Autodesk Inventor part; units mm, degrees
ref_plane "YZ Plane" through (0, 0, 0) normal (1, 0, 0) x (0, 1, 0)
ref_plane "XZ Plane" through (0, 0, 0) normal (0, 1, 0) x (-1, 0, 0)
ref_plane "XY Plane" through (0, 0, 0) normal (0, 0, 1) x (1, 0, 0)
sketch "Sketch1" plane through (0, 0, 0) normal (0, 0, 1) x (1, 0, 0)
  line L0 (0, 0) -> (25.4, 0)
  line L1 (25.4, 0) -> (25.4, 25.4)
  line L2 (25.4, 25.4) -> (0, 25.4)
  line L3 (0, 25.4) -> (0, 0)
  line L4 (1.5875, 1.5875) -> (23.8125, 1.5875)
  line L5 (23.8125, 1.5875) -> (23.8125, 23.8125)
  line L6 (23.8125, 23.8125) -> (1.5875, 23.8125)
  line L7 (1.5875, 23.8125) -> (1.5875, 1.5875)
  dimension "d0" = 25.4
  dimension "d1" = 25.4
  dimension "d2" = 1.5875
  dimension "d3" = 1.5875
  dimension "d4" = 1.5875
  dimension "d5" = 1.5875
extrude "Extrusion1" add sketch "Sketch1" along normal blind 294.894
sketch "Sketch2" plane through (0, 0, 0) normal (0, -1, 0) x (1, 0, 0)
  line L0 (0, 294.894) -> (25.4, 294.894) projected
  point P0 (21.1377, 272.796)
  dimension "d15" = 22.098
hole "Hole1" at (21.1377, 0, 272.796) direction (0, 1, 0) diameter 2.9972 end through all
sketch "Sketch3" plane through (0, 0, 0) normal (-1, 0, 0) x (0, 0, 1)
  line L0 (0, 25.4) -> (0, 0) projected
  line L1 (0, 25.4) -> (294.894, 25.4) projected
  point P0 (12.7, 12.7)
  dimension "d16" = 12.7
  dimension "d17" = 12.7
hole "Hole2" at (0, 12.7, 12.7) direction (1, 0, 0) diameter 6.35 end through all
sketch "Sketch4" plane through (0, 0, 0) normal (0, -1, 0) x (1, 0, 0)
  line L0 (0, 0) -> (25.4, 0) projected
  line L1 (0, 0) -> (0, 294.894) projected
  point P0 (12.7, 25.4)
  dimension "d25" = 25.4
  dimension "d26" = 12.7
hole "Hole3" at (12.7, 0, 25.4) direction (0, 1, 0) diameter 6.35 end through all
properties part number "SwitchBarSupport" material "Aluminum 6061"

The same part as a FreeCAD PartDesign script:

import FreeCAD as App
import Part
import Sketcher
from FreeCAD import Vector
Q = App.Units.Quantity

doc = App.newDocument("Part")
body = doc.addObject("PartDesign::Body", "Body")

# Sketch on XY plane
sketch1 = body.newObject("Sketcher::SketchObject", "Sketch")
sketch1.AttachmentSupport = (doc.getObject("XY_Plane"), [""])
sketch1.MapMode = "FlatFace"
sketch1.addGeometry([
    Part.LineSegment(Vector(0, 25, 0), Vector(0, 0, 0)),  # 0
    Part.LineSegment(Vector(0, 0, 0), Vector(25, 0, 0)),  # 1
    Part.LineSegment(Vector(25, 0, 0), Vector(25, 25, 0)),  # 2
    Part.LineSegment(Vector(25, 25, 0), Vector(0, 25, 0)),  # 3
    Part.LineSegment(Vector(24, 2, 0), Vector(2, 2, 0)),  # 4
    Part.LineSegment(Vector(2, 2, 0), Vector(2, 24, 0)),  # 5
    Part.LineSegment(Vector(2, 24, 0), Vector(24, 24, 0)),  # 6
    Part.LineSegment(Vector(24, 24, 0), Vector(24, 2, 0)),  # 7
], False)
sketch1.addConstraint([
    Sketcher.Constraint("Coincident", 0, 2, 1, 1),
    Sketcher.Constraint("Coincident", 1, 2, 2, 1),
    Sketcher.Constraint("Coincident", 2, 2, 3, 1),
    Sketcher.Constraint("Coincident", 3, 2, 0, 1),
    Sketcher.Constraint("Coincident", 4, 2, 5, 1),
    Sketcher.Constraint("Coincident", 5, 2, 6, 1),
    Sketcher.Constraint("Coincident", 6, 2, 7, 1),
    Sketcher.Constraint("Coincident", 7, 2, 4, 1),
    Sketcher.Constraint("Vertical", 0),
    Sketcher.Constraint("Horizontal", 1),
    Sketcher.Constraint("Vertical", 2),
    Sketcher.Constraint("Horizontal", 3),
    Sketcher.Constraint("Horizontal", 4),
    Sketcher.Constraint("Vertical", 5),
    Sketcher.Constraint("Horizontal", 6),
    Sketcher.Constraint("Vertical", 7),
    Sketcher.Constraint("Coincident", 0, 2, -1, 1),
    Sketcher.Constraint("Equal", 3, 0),
    Sketcher.Constraint("Equal", 6, 5),
    Sketcher.Constraint("DistanceX", 1, 1, 1, 2, Q("1 in")),
    Sketcher.Constraint("DistanceX", -1, 1, 4, 2, Q("0.0625 in")),
    Sketcher.Constraint("DistanceY", -1, 1, 4, 2, Q("0.0625 in")),
    Sketcher.Constraint("DistanceY", 5, 2, 3, 2, Q("0.0625 in")),
])
pad1 = body.newObject("PartDesign::Pad", "Pad")
pad1.Profile = sketch1
pad1.Length = Q("11.61 in")

# Sketch on XZ plane
sketch2 = body.newObject("Sketcher::SketchObject", "Sketch001")
sketch2.AttachmentSupport = (doc.getObject("XZ_Plane"), [""])
sketch2.MapMode = "FlatFace"
sketch2.addGeometry(Part.Circle(Vector(21.1, 272.8, 0), Vector(0, 0, 1), 1.5), False)
sketch2.addConstraint([
    Sketcher.Constraint("Diameter", 0, Q("0.118 in")),
    Sketcher.Constraint("DistanceY", -1, 1, 0, 3, Q("10.74 in")),
    Sketcher.Constraint("DistanceX", -1, 1, 0, 3, Q("0.8322 in")),
])
doc.recompute()
hole = body.newObject("PartDesign::Hole", "Hole")
hole.Profile = sketch2
hole.ThreadType = "None"
hole.Diameter = Q("0.118 in")
hole.DepthType = "ThroughAll"

# Sketch on YZ plane
sketch3 = body.newObject("Sketcher::SketchObject", "Sketch002")
sketch3.AttachmentSupport = (doc.getObject("YZ_Plane"), [""])
sketch3.MapMode = "FlatFace"
sketch3.addGeometry(Part.Circle(Vector(12.7, 12.7, 0), Vector(0, 0, 1), 3.2), False)
sketch3.addConstraint([
    Sketcher.Constraint("Diameter", 0, Q("0.25 in")),
    Sketcher.Constraint("DistanceX", -1, 1, 0, 3, Q("0.5 in")),
    Sketcher.Constraint("DistanceY", -1, 1, 0, 3, Q("0.5 in")),
])
doc.recompute()
hole2 = body.newObject("PartDesign::Hole", "Hole001")
hole2.Profile = sketch3
hole2.ThreadType = "None"
hole2.Diameter = Q("0.25 in")
hole2.DepthType = "ThroughAll"
hole2.Reversed = True

# Sketch on XZ plane
sketch4 = body.newObject("Sketcher::SketchObject", "Sketch003")
sketch4.AttachmentSupport = (doc.getObject("XZ_Plane"), [""])
sketch4.MapMode = "FlatFace"
sketch4.addGeometry(Part.Circle(Vector(12.7, 25.4, 0), Vector(0, 0, 1), 3.2), False)
sketch4.addConstraint([
    Sketcher.Constraint("Diameter", 0, Q("0.25 in")),
    Sketcher.Constraint("DistanceY", -1, 1, 0, 3, Q("1 in")),
    Sketcher.Constraint("DistanceX", -1, 1, 0, 3, Q("0.5 in")),
])
doc.recompute()
hole3 = body.newObject("PartDesign::Hole", "Hole002")
hole3.Profile = sketch4
hole3.ThreadType = "None"
hole3.Diameter = Q("0.25 in")
hole3.DepthType = "ThroughAll"

doc.recompute()
